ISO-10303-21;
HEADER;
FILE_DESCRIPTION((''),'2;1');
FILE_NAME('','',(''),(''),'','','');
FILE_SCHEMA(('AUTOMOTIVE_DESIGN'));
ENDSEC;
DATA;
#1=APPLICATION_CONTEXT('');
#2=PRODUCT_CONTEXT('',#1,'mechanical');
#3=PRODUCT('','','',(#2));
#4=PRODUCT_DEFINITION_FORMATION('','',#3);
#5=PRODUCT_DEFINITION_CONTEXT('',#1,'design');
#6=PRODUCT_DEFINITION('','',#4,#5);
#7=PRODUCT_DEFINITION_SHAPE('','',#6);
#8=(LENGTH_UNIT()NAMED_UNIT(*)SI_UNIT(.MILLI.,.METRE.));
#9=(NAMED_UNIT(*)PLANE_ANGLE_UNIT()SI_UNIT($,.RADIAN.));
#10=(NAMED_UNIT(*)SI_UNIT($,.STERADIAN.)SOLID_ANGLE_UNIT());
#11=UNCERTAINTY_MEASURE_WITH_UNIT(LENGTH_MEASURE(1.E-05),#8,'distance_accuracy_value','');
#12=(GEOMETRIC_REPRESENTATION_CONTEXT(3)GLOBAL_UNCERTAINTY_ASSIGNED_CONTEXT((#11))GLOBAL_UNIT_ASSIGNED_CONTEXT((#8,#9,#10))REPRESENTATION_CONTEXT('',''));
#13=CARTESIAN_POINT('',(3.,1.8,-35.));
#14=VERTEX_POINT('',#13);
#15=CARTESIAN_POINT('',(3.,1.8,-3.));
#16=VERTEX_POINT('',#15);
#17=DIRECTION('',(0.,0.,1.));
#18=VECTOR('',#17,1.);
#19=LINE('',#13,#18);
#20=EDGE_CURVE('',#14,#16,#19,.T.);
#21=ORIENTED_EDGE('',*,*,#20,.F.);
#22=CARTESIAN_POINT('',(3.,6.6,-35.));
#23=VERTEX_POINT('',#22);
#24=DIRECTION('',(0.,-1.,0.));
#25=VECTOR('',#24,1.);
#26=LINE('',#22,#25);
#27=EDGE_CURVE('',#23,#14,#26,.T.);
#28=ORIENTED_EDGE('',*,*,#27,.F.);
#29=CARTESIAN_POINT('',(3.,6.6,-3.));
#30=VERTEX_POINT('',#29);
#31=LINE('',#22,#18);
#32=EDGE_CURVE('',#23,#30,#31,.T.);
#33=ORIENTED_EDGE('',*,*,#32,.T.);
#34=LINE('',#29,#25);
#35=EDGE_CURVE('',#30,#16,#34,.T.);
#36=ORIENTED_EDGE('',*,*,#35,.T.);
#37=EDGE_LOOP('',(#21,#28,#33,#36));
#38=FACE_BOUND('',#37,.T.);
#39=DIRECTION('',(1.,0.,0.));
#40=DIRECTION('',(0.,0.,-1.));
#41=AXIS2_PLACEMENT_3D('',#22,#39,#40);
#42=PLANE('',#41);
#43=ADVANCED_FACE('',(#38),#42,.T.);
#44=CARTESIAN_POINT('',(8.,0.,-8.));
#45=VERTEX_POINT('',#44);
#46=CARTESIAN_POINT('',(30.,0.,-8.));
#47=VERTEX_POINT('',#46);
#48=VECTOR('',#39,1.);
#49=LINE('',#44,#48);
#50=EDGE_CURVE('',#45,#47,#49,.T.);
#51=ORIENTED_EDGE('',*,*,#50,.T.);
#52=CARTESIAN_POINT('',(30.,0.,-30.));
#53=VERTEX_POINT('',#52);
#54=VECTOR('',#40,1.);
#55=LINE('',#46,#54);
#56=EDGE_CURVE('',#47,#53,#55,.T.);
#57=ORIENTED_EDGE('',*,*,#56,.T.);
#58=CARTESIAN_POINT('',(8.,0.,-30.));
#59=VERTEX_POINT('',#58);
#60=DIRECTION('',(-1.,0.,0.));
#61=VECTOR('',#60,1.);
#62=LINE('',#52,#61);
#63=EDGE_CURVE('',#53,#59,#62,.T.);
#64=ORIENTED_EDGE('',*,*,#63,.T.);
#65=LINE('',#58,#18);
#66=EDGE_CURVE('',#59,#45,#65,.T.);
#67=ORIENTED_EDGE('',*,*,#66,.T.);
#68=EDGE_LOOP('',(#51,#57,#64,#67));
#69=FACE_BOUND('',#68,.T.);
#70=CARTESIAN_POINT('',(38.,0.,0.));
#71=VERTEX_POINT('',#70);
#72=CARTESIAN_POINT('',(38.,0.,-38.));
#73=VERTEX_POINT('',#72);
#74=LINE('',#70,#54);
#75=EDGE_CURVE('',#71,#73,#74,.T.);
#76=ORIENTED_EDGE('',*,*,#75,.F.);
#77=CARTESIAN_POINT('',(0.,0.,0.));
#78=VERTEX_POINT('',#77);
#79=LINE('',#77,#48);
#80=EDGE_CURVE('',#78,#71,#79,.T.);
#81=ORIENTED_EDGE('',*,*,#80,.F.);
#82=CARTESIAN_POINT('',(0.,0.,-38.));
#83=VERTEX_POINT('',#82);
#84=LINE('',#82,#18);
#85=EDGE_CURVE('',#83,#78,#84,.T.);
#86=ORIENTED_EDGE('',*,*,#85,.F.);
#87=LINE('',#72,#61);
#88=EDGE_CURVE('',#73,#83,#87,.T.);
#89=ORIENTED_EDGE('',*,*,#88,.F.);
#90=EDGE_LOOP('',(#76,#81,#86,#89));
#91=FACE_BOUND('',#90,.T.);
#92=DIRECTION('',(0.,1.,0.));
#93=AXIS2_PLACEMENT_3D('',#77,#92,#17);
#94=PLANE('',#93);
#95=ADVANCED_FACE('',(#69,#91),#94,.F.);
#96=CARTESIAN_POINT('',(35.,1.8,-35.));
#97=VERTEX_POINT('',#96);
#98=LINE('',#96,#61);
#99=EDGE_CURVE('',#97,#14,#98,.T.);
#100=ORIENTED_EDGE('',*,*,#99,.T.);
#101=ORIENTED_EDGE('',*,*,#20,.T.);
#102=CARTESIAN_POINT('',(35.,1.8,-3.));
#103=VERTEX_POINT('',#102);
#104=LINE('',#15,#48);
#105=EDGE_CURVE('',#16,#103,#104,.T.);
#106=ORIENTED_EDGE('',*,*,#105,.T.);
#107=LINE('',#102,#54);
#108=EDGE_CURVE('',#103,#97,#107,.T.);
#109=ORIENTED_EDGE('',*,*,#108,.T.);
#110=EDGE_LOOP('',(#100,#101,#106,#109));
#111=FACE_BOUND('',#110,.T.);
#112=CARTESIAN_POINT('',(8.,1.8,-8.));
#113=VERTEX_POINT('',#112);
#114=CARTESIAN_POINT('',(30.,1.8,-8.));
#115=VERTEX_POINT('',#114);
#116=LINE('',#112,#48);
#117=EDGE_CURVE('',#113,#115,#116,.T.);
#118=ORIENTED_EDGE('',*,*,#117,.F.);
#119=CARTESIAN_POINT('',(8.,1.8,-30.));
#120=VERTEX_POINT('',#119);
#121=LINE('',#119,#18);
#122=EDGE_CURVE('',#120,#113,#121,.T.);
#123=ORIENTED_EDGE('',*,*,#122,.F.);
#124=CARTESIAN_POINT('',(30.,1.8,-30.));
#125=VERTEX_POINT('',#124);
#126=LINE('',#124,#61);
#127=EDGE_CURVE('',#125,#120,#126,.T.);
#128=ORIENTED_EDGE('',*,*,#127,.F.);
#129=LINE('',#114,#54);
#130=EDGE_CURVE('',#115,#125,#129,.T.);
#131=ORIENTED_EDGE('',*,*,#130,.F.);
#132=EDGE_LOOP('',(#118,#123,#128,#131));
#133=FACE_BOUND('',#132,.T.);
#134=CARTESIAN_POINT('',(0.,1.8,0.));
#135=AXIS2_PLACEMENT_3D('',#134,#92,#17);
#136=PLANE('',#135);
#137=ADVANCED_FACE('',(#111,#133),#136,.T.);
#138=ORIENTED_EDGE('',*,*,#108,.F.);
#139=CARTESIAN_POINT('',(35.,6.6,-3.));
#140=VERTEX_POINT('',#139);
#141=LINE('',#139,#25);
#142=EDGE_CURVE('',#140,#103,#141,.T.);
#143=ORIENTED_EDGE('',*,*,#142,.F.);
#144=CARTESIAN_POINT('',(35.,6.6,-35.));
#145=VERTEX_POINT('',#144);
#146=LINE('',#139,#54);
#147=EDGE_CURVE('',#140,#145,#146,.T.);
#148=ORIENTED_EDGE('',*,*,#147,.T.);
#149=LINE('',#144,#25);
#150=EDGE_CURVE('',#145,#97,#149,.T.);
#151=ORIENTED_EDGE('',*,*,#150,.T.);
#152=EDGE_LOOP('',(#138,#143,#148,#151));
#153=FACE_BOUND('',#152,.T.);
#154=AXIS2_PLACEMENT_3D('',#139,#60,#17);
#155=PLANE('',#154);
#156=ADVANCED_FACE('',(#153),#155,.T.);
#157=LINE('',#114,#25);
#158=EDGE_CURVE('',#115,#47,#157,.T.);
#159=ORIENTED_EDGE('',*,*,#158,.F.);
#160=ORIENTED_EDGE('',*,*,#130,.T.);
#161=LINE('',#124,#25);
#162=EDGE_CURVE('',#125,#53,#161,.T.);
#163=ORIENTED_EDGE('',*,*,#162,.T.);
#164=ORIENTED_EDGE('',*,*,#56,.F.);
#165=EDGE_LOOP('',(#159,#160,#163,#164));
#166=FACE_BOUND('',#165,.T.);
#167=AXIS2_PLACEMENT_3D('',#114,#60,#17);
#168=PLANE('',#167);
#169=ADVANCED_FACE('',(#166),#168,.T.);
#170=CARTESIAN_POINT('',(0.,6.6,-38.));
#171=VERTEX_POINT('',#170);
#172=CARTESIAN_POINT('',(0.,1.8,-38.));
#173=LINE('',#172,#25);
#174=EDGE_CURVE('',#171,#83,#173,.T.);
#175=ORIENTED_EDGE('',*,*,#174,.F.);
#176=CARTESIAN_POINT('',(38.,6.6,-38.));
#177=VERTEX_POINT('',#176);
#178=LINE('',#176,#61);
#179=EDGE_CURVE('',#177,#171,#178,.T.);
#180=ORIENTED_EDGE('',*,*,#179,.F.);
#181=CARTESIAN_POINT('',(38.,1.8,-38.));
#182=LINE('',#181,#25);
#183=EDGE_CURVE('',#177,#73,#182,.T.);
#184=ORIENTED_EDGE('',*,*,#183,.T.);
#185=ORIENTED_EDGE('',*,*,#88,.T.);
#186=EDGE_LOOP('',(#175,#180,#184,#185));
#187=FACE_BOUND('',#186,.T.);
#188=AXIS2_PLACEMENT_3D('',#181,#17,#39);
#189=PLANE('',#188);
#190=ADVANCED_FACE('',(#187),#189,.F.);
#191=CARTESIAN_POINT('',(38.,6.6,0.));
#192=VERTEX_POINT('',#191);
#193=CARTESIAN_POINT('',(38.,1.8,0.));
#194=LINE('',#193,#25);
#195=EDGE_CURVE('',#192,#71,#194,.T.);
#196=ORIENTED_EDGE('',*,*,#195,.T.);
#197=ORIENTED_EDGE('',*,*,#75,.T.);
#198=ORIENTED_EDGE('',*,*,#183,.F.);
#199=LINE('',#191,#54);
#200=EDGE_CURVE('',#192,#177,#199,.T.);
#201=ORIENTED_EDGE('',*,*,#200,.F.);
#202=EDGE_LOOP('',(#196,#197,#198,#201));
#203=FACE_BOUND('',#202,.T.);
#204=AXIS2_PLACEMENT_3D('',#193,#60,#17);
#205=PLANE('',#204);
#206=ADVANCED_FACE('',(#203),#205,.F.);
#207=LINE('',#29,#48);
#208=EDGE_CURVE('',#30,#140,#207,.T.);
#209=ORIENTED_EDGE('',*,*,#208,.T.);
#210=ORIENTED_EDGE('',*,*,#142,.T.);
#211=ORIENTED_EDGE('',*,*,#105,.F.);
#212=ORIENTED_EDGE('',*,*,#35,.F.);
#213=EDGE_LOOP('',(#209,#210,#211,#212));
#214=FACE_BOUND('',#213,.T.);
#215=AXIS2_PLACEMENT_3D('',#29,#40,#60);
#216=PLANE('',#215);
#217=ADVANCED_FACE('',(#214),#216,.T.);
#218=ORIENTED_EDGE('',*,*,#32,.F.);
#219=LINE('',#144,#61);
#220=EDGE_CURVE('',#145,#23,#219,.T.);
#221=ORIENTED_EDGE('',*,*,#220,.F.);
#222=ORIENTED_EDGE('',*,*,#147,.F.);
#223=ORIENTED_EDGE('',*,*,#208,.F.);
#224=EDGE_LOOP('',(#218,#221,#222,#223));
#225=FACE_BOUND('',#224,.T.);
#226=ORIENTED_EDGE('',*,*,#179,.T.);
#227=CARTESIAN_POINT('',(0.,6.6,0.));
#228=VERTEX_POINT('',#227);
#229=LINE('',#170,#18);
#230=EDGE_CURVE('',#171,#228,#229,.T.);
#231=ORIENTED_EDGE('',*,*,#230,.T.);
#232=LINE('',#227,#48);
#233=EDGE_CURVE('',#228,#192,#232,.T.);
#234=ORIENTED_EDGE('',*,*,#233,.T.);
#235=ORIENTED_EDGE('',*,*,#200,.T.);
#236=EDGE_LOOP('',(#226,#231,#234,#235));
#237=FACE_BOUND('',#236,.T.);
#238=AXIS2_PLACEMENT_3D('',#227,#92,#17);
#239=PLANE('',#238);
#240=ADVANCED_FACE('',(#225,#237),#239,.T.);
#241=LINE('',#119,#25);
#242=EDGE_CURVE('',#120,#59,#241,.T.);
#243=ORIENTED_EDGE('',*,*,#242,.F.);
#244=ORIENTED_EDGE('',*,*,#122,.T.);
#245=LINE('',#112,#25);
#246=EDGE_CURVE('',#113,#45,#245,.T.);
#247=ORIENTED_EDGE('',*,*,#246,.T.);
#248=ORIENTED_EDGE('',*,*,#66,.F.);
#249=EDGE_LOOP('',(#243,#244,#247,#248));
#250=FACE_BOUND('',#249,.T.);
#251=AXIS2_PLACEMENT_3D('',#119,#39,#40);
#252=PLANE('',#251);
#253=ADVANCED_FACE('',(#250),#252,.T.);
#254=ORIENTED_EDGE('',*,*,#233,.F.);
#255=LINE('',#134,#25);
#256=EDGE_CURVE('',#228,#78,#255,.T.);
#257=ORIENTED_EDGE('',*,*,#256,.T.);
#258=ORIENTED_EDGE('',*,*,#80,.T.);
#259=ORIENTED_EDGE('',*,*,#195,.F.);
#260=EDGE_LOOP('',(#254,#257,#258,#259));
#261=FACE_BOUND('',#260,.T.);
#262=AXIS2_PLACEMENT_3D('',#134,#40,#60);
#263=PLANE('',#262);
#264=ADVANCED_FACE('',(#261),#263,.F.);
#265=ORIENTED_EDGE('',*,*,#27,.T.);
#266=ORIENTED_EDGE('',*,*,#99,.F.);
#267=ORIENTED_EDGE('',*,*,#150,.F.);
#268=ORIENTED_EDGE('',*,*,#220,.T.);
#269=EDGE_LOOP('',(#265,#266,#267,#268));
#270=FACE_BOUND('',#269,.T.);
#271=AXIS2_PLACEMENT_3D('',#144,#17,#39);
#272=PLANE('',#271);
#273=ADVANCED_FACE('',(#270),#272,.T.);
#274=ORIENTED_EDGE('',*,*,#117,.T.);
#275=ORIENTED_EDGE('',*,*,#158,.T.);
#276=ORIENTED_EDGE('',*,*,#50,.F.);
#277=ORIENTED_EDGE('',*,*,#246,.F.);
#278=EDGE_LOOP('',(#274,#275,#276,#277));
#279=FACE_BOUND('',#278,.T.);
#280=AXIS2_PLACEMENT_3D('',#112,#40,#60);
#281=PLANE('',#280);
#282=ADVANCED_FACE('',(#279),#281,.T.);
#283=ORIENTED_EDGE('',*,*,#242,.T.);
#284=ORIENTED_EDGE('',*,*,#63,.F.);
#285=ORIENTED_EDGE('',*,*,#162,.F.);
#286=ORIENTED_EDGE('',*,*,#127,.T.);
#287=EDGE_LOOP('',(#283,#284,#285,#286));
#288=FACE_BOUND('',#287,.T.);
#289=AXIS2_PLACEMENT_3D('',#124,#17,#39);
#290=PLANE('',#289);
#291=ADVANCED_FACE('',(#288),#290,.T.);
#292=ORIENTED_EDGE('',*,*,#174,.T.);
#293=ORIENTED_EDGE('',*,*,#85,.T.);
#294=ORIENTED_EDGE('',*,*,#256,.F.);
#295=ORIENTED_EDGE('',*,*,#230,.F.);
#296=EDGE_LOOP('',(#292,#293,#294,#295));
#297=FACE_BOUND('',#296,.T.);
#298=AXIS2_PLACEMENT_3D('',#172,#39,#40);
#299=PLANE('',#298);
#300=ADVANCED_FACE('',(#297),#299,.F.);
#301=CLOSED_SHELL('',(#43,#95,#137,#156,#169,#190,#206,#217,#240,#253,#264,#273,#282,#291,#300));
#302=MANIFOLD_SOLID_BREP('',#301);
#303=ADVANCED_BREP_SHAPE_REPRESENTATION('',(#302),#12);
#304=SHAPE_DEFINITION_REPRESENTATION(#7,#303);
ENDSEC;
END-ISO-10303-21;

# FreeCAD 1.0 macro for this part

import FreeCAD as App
import Part
import Sketcher

V = App.Vector
Q = App.Units.Quantity


def add_polygon(sketch, points):
    """Adds a closed chain of lines whose ends are joined by coincident constraints."""
    first, n = sketch.GeometryCount, len(points)
    for a, b in zip(points, points[1:] + points[:1]):
        sketch.addGeometry(Part.LineSegment(App.Vector(*a, 0), App.Vector(*b, 0)), False)
    for i in range(n):
        sketch.addConstraint(Sketcher.Constraint("Coincident", first + i, 2, first + (i + 1) % n, 1))

doc = App.newDocument("Part")
body = doc.addObject("PartDesign::Body", "Body")

sketch1 = doc.addObject("Sketcher::SketchObject", "Sketch")
body.addObject(sketch1)
sketch1.AttachmentSupport = (doc.XZ_Plane, [""])
sketch1.MapMode = "FlatFace"
add_polygon(sketch1, [(0, -38), (0, 0), (38, 0), (38, -38)])
add_polygon(sketch1, [(30, -8), (8, -8), (8, -30), (30, -30)])
sketch1.addConstraint([
    Sketcher.Constraint("Vertical", 0),
    Sketcher.Constraint("Horizontal", 1),
    Sketcher.Constraint("Vertical", 2),
    Sketcher.Constraint("Horizontal", 3),
    Sketcher.Constraint("Horizontal", 4),
    Sketcher.Constraint("Vertical", 5),
    Sketcher.Constraint("Horizontal", 6),
    Sketcher.Constraint("Vertical", 7),
    Sketcher.Constraint("Coincident", 0, 2, -1, 1),
    Sketcher.Constraint("Equal", 3, 0),
    Sketcher.Constraint("Equal", 6, 5),
    Sketcher.Constraint("DistanceX", 1, 1, 1, 2, Q("38 mm")),
    Sketcher.Constraint("DistanceX", 4, 2, 4, 1, Q("22 mm")),
    Sketcher.Constraint("DistanceX", -1, 1, 4, 2, Q("8 mm")),
    Sketcher.Constraint("DistanceY", 4, 2, -1, 1, Q("8 mm")),
])
pad1 = doc.addObject("PartDesign::Pad", "Pad")
body.addObject(pad1)
pad1.Profile = sketch1
pad1.Length = 1.8
pad1.Reversed = True

sketch2 = doc.addObject("Sketcher::SketchObject", "Sketch001")
body.addObject(sketch2)
sketch2.AttachmentSupport = (doc.XZ_Plane, [""])
sketch2.MapMode = "FlatFace"
sketch2.AttachmentOffset = App.Placement(V(0, 0, -1.8), App.Rotation())
add_polygon(sketch2, [(0, -38), (0, 0), (38, 0), (38, -38)])
add_polygon(sketch2, [(35, -3), (3, -3), (3, -35), (35, -35)])
sketch2.addConstraint([
    Sketcher.Constraint("Vertical", 0),
    Sketcher.Constraint("Horizontal", 1),
    Sketcher.Constraint("Vertical", 2),
    Sketcher.Constraint("Horizontal", 3),
    Sketcher.Constraint("Horizontal", 4),
    Sketcher.Constraint("Vertical", 5),
    Sketcher.Constraint("Horizontal", 6),
    Sketcher.Constraint("Vertical", 7),
    Sketcher.Constraint("Coincident", 0, 2, -1, 1),
    Sketcher.Constraint("Equal", 3, 0),
    Sketcher.Constraint("Equal", 6, 5),
    Sketcher.Constraint("DistanceX", 1, 1, 1, 2, Q("38 mm")),
    Sketcher.Constraint("DistanceX", 4, 2, 4, 1, Q("32 mm")),
    Sketcher.Constraint("DistanceX", -1, 1, 4, 2, Q("3 mm")),
    Sketcher.Constraint("DistanceY", 4, 2, -1, 1, Q("3 mm")),
])
pad2 = doc.addObject("PartDesign::Pad", "Pad001")
body.addObject(pad2)
pad2.Profile = sketch2
pad2.Length = 4.8
pad2.Reversed = True

doc.recompute()
